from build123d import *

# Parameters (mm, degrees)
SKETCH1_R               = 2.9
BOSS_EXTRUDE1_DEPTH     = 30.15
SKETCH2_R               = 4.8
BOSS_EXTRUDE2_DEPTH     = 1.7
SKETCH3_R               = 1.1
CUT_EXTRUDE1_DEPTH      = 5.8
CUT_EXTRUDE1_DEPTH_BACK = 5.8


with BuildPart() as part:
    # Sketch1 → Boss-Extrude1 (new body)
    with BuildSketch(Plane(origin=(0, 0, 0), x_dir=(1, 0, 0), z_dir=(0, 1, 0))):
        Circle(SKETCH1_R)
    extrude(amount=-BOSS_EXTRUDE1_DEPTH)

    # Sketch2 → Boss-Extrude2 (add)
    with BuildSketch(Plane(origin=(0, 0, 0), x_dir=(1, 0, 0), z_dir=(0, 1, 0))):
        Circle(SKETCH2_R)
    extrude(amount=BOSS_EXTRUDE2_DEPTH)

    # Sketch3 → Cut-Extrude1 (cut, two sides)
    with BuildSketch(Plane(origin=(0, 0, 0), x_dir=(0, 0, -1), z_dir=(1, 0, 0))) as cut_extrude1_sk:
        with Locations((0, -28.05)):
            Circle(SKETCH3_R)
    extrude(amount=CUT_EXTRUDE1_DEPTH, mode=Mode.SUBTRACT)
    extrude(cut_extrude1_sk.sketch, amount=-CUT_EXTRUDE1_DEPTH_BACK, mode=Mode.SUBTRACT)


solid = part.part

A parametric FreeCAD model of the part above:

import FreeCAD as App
import Part
import Sketcher
from FreeCAD import Vector
Q = App.Units.Quantity

doc = App.newDocument("Part")
params = doc.addObject("Spreadsheet::Sheet", "Params")
for row, (alias, value) in enumerate([
    ("sketch1_diameter", "5.8 mm"),
    ("pad1_length", "30.15 mm"),
    ("sketch2_diameter", "9.6 mm"),
    ("pad2_length", "1.7 mm"),
    ("sketch3_diameter", "2.2 mm"),
], start=1):
    params.set(f"A{row}", alias)
    params.set(f"B{row}", "=" + value)
    params.setAlias(f"B{row}", alias)

body = doc.addObject("PartDesign::Body", "Body")

sketch1 = doc.addObject("Sketcher::SketchObject", "Sketch")
body.addObject(sketch1)
sketch1.AttachmentSupport = (doc.XZ_Plane, [""])
sketch1.MapMode = "FlatFace"
sketch1.addGeometry(Part.Circle(Vector(0, 0, 0), Vector(0, 0, 1), 2.9), False)
sketch1.addConstraint([
    Sketcher.Constraint("Coincident", 0, 3, -1, 1),
    Sketcher.Constraint("Diameter", 0, Q("5.8 mm")),
])
sketch1.setExpression("Constraints[1]", "Params.sketch1_diameter")
pad1 = doc.addObject("PartDesign::Pad", "Pad")
body.addObject(pad1)
pad1.Profile = sketch1
pad1.setExpression("Length", "Params.pad1_length")

sketch2 = doc.addObject("Sketcher::SketchObject", "Sketch001")
body.addObject(sketch2)
sketch2.AttachmentSupport = (doc.XZ_Plane, [""])
sketch2.MapMode = "FlatFace"
sketch2.addGeometry(Part.Circle(Vector(0, 0, 0), Vector(0, 0, 1), 4.8), False)
sketch2.addConstraint([
    Sketcher.Constraint("Coincident", 0, 3, -1, 1),
    Sketcher.Constraint("Diameter", 0, Q("9.6 mm")),
])
sketch2.setExpression("Constraints[1]", "Params.sketch2_diameter")
pad2 = doc.addObject("PartDesign::Pad", "Pad001")
body.addObject(pad2)
pad2.Profile = sketch2
pad2.setExpression("Length", "Params.pad2_length")
pad2.Reversed = True

sketch3 = doc.addObject("Sketcher::SketchObject", "Sketch002")
body.addObject(sketch3)
sketch3.AttachmentSupport = (doc.YZ_Plane, [""])
sketch3.MapMode = "FlatFace"
sketch3.addGeometry(Part.Circle(Vector(-28.1, 0, 0), Vector(0, 0, 1), 1.1), False)
sketch3.addConstraint([
    Sketcher.Constraint("PointOnObject", 0, 3, -1),
    Sketcher.Constraint("Diameter", 0, Q("2.2 mm")),
    Sketcher.Constraint("DistanceX", 0, 3, -1, 1, Q("28.05 mm")),
])
sketch3.setExpression("Constraints[1]", "Params.sketch3_diameter")
pocket1 = doc.addObject("PartDesign::Pocket", "Pocket")
body.addObject(pocket1)
pocket1.Profile = sketch3
pocket1.Type = "ThroughAll"
pocket1.Midplane = True

doc.recompute()
